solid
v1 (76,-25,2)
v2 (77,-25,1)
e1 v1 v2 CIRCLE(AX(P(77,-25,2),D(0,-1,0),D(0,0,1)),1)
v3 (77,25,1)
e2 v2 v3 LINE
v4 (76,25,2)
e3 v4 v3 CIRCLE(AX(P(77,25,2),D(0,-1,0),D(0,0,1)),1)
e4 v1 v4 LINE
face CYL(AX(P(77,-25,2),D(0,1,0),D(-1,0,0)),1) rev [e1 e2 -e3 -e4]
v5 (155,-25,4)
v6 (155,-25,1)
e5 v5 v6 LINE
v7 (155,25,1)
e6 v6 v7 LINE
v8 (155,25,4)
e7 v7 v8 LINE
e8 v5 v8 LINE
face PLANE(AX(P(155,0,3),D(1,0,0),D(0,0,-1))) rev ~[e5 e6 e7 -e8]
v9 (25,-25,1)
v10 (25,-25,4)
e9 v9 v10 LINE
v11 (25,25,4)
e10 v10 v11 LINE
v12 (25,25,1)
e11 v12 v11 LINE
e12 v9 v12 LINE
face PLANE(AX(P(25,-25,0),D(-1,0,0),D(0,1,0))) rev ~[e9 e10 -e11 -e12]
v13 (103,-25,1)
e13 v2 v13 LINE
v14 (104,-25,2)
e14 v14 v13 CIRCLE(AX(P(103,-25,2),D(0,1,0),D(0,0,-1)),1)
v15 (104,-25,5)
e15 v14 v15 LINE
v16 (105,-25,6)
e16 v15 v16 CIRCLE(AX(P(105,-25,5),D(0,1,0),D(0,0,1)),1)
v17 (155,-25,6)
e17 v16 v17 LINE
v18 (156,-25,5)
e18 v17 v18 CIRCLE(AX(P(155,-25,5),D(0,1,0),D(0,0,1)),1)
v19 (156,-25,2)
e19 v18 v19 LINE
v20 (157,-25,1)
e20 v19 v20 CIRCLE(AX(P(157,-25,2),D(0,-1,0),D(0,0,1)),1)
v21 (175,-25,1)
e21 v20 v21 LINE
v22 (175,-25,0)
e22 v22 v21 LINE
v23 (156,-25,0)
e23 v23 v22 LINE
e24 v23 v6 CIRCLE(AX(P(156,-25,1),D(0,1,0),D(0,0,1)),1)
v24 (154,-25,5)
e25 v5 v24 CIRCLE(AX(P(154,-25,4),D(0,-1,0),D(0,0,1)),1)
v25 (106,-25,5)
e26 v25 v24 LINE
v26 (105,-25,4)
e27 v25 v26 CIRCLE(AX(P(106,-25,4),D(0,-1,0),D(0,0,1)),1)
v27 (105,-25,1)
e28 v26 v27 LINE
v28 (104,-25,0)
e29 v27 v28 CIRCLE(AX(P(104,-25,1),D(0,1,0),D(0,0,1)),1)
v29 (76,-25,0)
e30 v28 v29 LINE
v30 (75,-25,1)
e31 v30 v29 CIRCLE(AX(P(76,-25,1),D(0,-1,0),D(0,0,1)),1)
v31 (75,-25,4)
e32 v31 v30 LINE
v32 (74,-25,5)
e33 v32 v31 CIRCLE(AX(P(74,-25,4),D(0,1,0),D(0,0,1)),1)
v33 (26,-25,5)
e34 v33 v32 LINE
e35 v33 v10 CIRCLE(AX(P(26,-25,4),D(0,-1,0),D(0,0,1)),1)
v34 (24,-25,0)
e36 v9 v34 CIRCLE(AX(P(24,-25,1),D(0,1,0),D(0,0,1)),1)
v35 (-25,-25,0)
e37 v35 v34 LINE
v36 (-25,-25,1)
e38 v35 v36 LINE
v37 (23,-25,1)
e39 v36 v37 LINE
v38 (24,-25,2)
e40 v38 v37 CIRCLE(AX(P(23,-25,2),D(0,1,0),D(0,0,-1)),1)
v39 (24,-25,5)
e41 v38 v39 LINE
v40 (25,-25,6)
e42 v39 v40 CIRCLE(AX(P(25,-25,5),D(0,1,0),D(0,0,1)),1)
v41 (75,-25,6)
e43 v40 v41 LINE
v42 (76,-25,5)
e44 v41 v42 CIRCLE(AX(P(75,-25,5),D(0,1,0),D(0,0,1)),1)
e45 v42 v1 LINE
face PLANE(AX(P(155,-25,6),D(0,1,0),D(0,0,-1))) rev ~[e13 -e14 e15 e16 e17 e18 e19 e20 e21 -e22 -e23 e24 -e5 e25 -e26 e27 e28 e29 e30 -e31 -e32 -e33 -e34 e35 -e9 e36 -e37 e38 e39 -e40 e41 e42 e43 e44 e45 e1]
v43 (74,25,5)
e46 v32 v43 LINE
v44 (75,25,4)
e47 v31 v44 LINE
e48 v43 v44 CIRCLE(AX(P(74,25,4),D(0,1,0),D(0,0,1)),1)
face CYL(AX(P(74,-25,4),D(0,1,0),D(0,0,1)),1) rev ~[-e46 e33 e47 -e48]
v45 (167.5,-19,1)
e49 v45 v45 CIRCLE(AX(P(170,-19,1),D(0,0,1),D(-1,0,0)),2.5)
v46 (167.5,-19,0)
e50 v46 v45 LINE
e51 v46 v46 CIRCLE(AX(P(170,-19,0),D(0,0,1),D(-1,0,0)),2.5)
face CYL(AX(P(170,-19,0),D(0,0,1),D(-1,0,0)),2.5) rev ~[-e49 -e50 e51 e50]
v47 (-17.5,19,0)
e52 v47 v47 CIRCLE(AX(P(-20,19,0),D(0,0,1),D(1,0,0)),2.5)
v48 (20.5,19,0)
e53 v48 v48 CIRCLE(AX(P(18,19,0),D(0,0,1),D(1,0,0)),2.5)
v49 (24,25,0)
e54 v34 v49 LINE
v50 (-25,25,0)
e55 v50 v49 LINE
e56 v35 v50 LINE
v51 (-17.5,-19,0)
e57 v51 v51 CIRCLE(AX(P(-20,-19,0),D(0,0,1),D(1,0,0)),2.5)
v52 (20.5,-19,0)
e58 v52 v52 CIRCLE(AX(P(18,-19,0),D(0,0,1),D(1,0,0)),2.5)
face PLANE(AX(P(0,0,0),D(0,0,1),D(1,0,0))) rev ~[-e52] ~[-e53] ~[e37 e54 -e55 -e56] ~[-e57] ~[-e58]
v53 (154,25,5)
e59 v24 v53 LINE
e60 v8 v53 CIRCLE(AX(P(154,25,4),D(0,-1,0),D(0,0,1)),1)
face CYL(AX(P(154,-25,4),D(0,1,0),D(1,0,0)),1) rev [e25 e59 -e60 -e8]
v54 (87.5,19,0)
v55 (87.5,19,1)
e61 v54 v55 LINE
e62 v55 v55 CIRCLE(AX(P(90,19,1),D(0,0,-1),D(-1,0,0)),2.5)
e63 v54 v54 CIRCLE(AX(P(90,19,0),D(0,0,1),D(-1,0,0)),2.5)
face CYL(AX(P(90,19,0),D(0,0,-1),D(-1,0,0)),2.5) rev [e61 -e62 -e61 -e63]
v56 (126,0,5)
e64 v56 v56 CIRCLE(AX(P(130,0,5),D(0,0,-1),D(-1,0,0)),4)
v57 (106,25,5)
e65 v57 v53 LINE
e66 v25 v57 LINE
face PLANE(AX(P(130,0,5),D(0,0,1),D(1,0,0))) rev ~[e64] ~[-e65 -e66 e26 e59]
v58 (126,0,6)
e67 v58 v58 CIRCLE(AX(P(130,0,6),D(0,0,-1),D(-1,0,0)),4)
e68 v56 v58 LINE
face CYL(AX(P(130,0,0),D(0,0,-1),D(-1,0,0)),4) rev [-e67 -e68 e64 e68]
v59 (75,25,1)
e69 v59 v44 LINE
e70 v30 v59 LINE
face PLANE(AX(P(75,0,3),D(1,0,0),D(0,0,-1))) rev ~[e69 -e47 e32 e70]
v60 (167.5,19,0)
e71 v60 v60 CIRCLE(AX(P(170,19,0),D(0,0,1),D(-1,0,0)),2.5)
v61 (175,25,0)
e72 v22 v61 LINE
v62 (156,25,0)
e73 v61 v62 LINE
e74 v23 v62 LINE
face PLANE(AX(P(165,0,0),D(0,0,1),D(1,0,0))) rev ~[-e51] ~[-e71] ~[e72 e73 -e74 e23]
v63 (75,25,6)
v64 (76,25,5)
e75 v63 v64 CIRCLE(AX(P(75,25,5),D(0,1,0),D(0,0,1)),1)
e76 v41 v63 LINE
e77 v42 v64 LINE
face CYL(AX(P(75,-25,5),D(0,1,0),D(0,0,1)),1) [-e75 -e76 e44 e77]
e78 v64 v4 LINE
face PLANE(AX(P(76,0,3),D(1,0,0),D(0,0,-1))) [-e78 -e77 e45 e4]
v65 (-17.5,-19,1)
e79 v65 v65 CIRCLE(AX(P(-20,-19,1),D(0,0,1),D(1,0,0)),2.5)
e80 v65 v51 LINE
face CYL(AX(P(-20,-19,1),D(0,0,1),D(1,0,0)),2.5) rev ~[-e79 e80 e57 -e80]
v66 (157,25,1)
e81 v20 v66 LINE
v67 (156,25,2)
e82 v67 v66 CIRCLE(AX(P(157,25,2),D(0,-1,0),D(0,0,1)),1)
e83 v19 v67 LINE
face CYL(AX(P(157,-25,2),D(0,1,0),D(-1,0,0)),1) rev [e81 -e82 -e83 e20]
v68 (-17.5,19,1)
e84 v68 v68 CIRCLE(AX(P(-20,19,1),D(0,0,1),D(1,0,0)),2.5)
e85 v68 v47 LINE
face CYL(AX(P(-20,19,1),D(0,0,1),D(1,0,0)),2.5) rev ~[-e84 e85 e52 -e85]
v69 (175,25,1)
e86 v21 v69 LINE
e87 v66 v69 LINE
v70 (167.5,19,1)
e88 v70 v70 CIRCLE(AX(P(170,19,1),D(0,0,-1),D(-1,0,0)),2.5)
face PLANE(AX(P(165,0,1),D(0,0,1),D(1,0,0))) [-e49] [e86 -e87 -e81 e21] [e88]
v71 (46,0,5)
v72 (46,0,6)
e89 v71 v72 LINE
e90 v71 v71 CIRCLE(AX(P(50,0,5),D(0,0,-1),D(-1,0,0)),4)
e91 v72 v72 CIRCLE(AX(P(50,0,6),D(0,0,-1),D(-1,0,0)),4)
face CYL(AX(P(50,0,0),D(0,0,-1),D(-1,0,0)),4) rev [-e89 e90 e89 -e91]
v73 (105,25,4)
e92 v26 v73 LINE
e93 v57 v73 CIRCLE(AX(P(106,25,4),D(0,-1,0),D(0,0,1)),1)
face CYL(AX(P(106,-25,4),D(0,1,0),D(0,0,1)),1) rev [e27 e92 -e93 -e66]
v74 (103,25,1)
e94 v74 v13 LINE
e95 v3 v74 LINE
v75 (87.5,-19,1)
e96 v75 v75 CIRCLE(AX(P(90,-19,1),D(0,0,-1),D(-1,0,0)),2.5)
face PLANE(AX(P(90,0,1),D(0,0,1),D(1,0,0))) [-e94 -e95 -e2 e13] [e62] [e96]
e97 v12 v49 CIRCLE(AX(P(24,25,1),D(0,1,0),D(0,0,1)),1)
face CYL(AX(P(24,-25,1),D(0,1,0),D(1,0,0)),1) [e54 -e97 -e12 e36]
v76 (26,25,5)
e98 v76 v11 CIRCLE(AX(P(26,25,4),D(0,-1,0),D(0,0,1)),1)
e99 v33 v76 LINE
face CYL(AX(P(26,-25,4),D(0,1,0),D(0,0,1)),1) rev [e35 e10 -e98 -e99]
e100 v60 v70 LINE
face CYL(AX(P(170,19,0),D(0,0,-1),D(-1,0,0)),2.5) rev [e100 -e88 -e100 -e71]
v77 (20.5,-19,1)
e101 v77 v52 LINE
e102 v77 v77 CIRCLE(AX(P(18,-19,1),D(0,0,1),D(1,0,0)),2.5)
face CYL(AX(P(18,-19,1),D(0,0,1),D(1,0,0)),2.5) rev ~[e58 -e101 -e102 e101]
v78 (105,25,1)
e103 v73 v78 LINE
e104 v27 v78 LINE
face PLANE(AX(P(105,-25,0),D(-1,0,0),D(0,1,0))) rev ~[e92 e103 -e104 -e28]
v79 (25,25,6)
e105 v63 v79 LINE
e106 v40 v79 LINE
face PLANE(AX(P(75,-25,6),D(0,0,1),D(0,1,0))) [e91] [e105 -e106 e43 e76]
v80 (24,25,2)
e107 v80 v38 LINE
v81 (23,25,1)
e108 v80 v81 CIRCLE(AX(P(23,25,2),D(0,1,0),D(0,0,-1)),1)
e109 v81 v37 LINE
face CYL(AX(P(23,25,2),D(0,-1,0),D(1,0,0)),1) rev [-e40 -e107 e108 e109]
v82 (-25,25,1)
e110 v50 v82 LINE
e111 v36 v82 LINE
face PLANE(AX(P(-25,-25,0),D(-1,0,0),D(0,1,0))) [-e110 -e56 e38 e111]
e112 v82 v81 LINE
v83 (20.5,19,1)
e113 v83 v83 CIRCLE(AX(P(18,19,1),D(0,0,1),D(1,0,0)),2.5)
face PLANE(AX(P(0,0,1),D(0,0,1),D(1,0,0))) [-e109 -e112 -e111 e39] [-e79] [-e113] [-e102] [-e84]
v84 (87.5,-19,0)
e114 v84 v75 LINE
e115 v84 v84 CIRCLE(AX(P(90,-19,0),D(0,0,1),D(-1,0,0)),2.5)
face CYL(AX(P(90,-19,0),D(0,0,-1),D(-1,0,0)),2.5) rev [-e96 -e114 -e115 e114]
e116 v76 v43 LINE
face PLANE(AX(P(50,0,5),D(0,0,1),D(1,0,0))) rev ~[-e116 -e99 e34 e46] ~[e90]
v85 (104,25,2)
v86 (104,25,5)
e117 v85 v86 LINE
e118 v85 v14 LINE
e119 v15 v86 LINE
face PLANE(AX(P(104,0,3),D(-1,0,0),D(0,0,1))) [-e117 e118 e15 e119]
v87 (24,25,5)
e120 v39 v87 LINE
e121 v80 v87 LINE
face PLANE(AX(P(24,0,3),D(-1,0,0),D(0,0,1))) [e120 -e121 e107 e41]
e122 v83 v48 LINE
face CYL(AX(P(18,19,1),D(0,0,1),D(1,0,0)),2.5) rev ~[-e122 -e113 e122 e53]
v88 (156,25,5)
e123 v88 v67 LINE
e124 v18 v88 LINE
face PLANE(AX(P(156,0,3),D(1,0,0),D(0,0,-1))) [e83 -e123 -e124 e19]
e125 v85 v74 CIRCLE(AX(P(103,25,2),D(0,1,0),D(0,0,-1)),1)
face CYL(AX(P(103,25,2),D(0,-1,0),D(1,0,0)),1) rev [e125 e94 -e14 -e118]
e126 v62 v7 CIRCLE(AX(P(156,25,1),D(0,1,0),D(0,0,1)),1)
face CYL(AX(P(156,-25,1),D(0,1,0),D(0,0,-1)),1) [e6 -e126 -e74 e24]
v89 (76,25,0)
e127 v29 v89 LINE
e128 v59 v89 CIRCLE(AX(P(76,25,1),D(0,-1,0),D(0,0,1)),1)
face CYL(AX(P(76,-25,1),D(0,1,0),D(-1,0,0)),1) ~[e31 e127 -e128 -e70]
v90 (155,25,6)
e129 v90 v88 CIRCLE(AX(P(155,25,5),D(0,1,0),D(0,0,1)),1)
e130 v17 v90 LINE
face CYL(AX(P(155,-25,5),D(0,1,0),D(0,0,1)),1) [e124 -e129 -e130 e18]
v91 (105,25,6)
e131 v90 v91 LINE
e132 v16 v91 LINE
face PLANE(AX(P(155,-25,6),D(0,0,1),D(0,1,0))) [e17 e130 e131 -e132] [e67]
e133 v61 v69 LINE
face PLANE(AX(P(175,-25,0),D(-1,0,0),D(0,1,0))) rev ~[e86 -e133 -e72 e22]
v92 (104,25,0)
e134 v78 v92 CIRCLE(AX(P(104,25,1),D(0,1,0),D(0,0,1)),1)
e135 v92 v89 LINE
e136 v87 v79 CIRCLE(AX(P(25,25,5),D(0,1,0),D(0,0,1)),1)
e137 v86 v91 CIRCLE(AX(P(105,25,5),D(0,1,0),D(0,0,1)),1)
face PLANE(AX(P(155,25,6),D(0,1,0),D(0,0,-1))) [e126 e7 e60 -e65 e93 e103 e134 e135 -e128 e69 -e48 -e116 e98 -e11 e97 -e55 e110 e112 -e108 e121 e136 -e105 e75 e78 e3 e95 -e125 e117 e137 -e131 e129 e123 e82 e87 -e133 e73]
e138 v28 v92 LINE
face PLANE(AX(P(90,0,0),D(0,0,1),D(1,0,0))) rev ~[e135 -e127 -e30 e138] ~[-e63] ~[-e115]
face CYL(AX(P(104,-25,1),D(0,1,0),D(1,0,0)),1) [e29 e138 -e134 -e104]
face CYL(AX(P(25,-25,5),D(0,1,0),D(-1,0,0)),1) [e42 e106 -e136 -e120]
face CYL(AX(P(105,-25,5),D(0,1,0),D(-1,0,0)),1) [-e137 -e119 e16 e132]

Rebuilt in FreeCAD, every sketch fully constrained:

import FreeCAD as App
import Part
import Sketcher


def edges_at(feature, points):
    """Names of the edges that pass closest to the given points."""
    edges = feature.Shape.Edges
    near = lambda p: min(range(len(edges)), key=lambda i: edges[i].distToShape(Part.Vertex(*p))[0])
    return sorted({f"Edge{near(p) + 1}" for p in points})

doc = App.newDocument("Part")
body = doc.addObject("PartDesign::Body", "Body")

# Sketch on XY plane
sketch1 = body.newObject("Sketcher::SketchObject", "Sketch")
sketch1.AttachmentSupport = (doc.getObject("XY_Plane"), [""])
sketch1.MapMode = "FlatFace"
sketch1.addGeometry(Part.LineSegment(App.Vector(-25, 25, 0), App.Vector(-25, -25, 0)), False)
sketch1.addGeometry(Part.LineSegment(App.Vector(-25, -25, 0), App.Vector(25, -25, 0)), False)
sketch1.addGeometry(Part.LineSegment(App.Vector(25, -25, 0), App.Vector(25, 25, 0)), False)
sketch1.addGeometry(Part.LineSegment(App.Vector(25, 25, 0), App.Vector(-25, 25, 0)), False)
sketch1.addConstraint(Sketcher.Constraint("Coincident", 0, 2, 1, 1))
sketch1.addConstraint(Sketcher.Constraint("Coincident", 1, 2, 2, 1))
sketch1.addConstraint(Sketcher.Constraint("Coincident", 2, 2, 3, 1))
sketch1.addConstraint(Sketcher.Constraint("Coincident", 3, 2, 0, 1))
sketch1.addConstraint(Sketcher.Constraint("Vertical", 0))
sketch1.addConstraint(Sketcher.Constraint("Horizontal", 1))
sketch1.addConstraint(Sketcher.Constraint("Vertical", 2))
sketch1.addConstraint(Sketcher.Constraint("Horizontal", 3))
sketch1.addConstraint(Sketcher.Constraint("Symmetric", 0, 2, 2, 2, -1, 1))
sketch1.addConstraint(Sketcher.Constraint("Equal", 3, 0))
sketch1.addConstraint(Sketcher.Constraint("DistanceX", 1, 1, 1, 2, 50.0))
pad1 = body.newObject("PartDesign::Pad", "Pad")
pad1.Profile = sketch1
pad1.Length = 1
body2 = doc.addObject("PartDesign::Body", "Body001")

# Sketch on XY plane
sketch2 = body2.newObject("Sketcher::SketchObject", "Sketch001")
sketch2.AttachmentSupport = (doc.getObject("XY_Plane001"), [""])
sketch2.MapMode = "FlatFace"
sketch2.AttachmentOffset = App.Placement(App.Vector(0, 0, 5), App.Rotation())
sketch2.addGeometry(Part.LineSegment(App.Vector(25, 25, 0), App.Vector(25, -25, 0)), False)
sketch2.addGeometry(Part.LineSegment(App.Vector(25, -25, 0), App.Vector(75, -25, 0)), False)
sketch2.addGeometry(Part.LineSegment(App.Vector(75, -25, 0), App.Vector(75, 25, 0)), False)
sketch2.addGeometry(Part.LineSegment(App.Vector(75, 25, 0), App.Vector(25, 25, 0)), False)
sketch2.addConstraint(Sketcher.Constraint("Coincident", 0, 2, 1, 1))
sketch2.addConstraint(Sketcher.Constraint("Coincident", 1, 2, 2, 1))
sketch2.addConstraint(Sketcher.Constraint("Coincident", 2, 2, 3, 1))
sketch2.addConstraint(Sketcher.Constraint("Coincident", 3, 2, 0, 1))
sketch2.addConstraint(Sketcher.Constraint("Vertical", 0))
sketch2.addConstraint(Sketcher.Constraint("Horizontal", 1))
sketch2.addConstraint(Sketcher.Constraint("Vertical", 2))
sketch2.addConstraint(Sketcher.Constraint("Horizontal", 3))
sketch2.addConstraint(Sketcher.Constraint("Equal", 3, 0))
sketch2.addConstraint(Sketcher.Constraint("DistanceX", 1, 1, 1, 2, 50.0))
sketch2.addConstraint(Sketcher.Constraint("DistanceX", -1, 1, 0, 2, 25.0))
sketch2.addConstraint(Sketcher.Constraint("DistanceY", 0, 2, -1, 1, 25.0))
pad2 = body2.newObject("PartDesign::Pad", "Pad001")
pad2.Profile = sketch2
pad2.Length = 1
body3 = doc.addObject("PartDesign::Body", "Body002")

# Sketch on XY plane
sketch3 = body3.newObject("Sketcher::SketchObject", "Sketch002")
sketch3.AttachmentSupport = (doc.getObject("XY_Plane002"), [""])
sketch3.MapMode = "FlatFace"
sketch3.addGeometry(Part.LineSegment(App.Vector(75, 25, 0), App.Vector(75, -25, 0)), False)
sketch3.addGeometry(Part.LineSegment(App.Vector(75, -25, 0), App.Vector(105, -25, 0)), False)
sketch3.addGeometry(Part.LineSegment(App.Vector(105, -25, 0), App.Vector(105, 25, 0)), False)
sketch3.addGeometry(Part.LineSegment(App.Vector(105, 25, 0), App.Vector(75, 25, 0)), False)
sketch3.addConstraint(Sketcher.Constraint("Coincident", 0, 2, 1, 1))
sketch3.addConstraint(Sketcher.Constraint("Coincident", 1, 2, 2, 1))
sketch3.addConstraint(Sketcher.Constraint("Coincident", 2, 2, 3, 1))
sketch3.addConstraint(Sketcher.Constraint("Coincident", 3, 2, 0, 1))
sketch3.addConstraint(Sketcher.Constraint("Vertical", 0))
sketch3.addConstraint(Sketcher.Constraint("Horizontal", 1))
sketch3.addConstraint(Sketcher.Constraint("Vertical", 2))
sketch3.addConstraint(Sketcher.Constraint("Horizontal", 3))
sketch3.addConstraint(Sketcher.Constraint("DistanceX", 1, 1, 1, 2, 30.0))
sketch3.addConstraint(Sketcher.Constraint("DistanceY", 0, 2, 0, 1, 50.0))
sketch3.addConstraint(Sketcher.Constraint("DistanceX", -1, 1, 0, 2, 75.0))
sketch3.addConstraint(Sketcher.Constraint("DistanceY", 0, 2, -1, 1, 25.0))
pad3 = body3.newObject("PartDesign::Pad", "Pad002")
pad3.Profile = sketch3
pad3.Length = 1
body4 = doc.addObject("PartDesign::Body", "Body003")

# Sketch on XY plane
sketch4 = body4.newObject("Sketcher::SketchObject", "Sketch003")
sketch4.AttachmentSupport = (doc.getObject("XY_Plane003"), [""])
sketch4.MapMode = "FlatFace"
sketch4.AttachmentOffset = App.Placement(App.Vector(0, 0, 5), App.Rotation())
sketch4.addGeometry(Part.LineSegment(App.Vector(105, 25, 0), App.Vector(105, -25, 0)), False)
sketch4.addGeometry(Part.LineSegment(App.Vector(105, -25, 0), App.Vector(155, -25, 0)), False)
sketch4.addGeometry(Part.LineSegment(App.Vector(155, -25, 0), App.Vector(155, 25, 0)), False)
sketch4.addGeometry(Part.LineSegment(App.Vector(155, 25, 0), App.Vector(105, 25, 0)), False)
sketch4.addConstraint(Sketcher.Constraint("Coincident", 0, 2, 1, 1))
sketch4.addConstraint(Sketcher.Constraint("Coincident", 1, 2, 2, 1))
sketch4.addConstraint(Sketcher.Constraint("Coincident", 2, 2, 3, 1))
sketch4.addConstraint(Sketcher.Constraint("Coincident", 3, 2, 0, 1))
sketch4.addConstraint(Sketcher.Constraint("Vertical", 0))
sketch4.addConstraint(Sketcher.Constraint("Horizontal", 1))
sketch4.addConstraint(Sketcher.Constraint("Vertical", 2))
sketch4.addConstraint(Sketcher.Constraint("Horizontal", 3))
sketch4.addConstraint(Sketcher.Constraint("Equal", 3, 0))
sketch4.addConstraint(Sketcher.Constraint("DistanceX", 1, 1, 1, 2, 50.0))
sketch4.addConstraint(Sketcher.Constraint("DistanceX", -1, 1, 0, 2, 105.0))
sketch4.addConstraint(Sketcher.Constraint("DistanceY", 0, 2, -1, 1, 25.0))
pad4 = body4.newObject("PartDesign::Pad", "Pad003")
pad4.Profile = sketch4
pad4.Length = 1
body5 = doc.addObject("PartDesign::Body", "Body004")

# Sketch on XY plane
sketch5 = body5.newObject("Sketcher::SketchObject", "Sketch004")
sketch5.AttachmentSupport = (doc.getObject("XY_Plane004"), [""])
sketch5.MapMode = "FlatFace"
sketch5.addGeometry(Part.LineSegment(App.Vector(155, 25, 0), App.Vector(155, -25, 0)), False)
sketch5.addGeometry(Part.LineSegment(App.Vector(155, -25, 0), App.Vector(175, -25, 0)), False)
sketch5.addGeometry(Part.LineSegment(App.Vector(175, -25, 0), App.Vector(175, 25, 0)), False)
sketch5.addGeometry(Part.LineSegment(App.Vector(175, 25, 0), App.Vector(155, 25, 0)), False)
sketch5.addConstraint(Sketcher.Constraint("Coincident", 0, 2, 1, 1))
sketch5.addConstraint(Sketcher.Constraint("Coincident", 1, 2, 2, 1))
sketch5.addConstraint(Sketcher.Constraint("Coincident", 2, 2, 3, 1))
sketch5.addConstraint(Sketcher.Constraint("Coincident", 3, 2, 0, 1))
sketch5.addConstraint(Sketcher.Constraint("Vertical", 0))
sketch5.addConstraint(Sketcher.Constraint("Horizontal", 1))
sketch5.addConstraint(Sketcher.Constraint("Vertical", 2))
sketch5.addConstraint(Sketcher.Constraint("Horizontal", 3))
sketch5.addConstraint(Sketcher.Constraint("DistanceX", 1, 1, 1, 2, 20.0))
sketch5.addConstraint(Sketcher.Constraint("DistanceY", 0, 2, 0, 1, 50.0))
sketch5.addConstraint(Sketcher.Constraint("DistanceX", -1, 1, 0, 2, 155.0))
sketch5.addConstraint(Sketcher.Constraint("DistanceY", 0, 2, -1, 1, 25.0))
pad5 = body5.newObject("PartDesign::Pad", "Pad004")
pad5.Profile = sketch5
pad5.Length = 1
body.AllowCompound = True
doc.recompute()

boolean = body.newObject("PartDesign::Boolean", "Boolean")
boolean.Type = "Fuse"
boolean.addObjects([body2])

# Sketch on YZ plane
sketch6 = body.newObject("Sketcher::SketchObject", "Sketch005")
sketch6.AttachmentSupport = (doc.getObject("YZ_Plane"), [""])
sketch6.MapMode = "FlatFace"
sketch6.AttachmentOffset = App.Placement(App.Vector(0, 0, 25), App.Rotation())
sketch6.addGeometry(Part.LineSegment(App.Vector(25, 0, 0), App.Vector(-25, 0, 0)), False)
sketch6.addGeometry(Part.LineSegment(App.Vector(-25, 0, 0), App.Vector(-25, 6, 0)), False)
sketch6.addGeometry(Part.LineSegment(App.Vector(-25, 6, 0), App.Vector(25, 6, 0)), False)
sketch6.addGeometry(Part.LineSegment(App.Vector(25, 6, 0), App.Vector(25, 0, 0)), False)
sketch6.addConstraint(Sketcher.Constraint("Coincident", 0, 2, 1, 1))
sketch6.addConstraint(Sketcher.Constraint("Coincident", 1, 2, 2, 1))
sketch6.addConstraint(Sketcher.Constraint("Coincident", 2, 2, 3, 1))
sketch6.addConstraint(Sketcher.Constraint("Coincident", 3, 2, 0, 1))
sketch6.addConstraint(Sketcher.Constraint("Horizontal", 0))
sketch6.addConstraint(Sketcher.Constraint("Vertical", 1))
sketch6.addConstraint(Sketcher.Constraint("Horizontal", 2))
sketch6.addConstraint(Sketcher.Constraint("Vertical", 3))
sketch6.addConstraint(Sketcher.Constraint("Symmetric", 0, 2, 3, 2, -1, 1))
sketch6.addConstraint(Sketcher.Constraint("DistanceX", 0, 2, 0, 1, 50.0))
sketch6.addConstraint(Sketcher.Constraint("DistanceY", 1, 1, 1, 2, 6.0))
pad6 = body.newObject("PartDesign::Pad", "Pad005")
pad6.Profile = sketch6
pad6.Length = 1
pad6.Reversed = True
doc.recompute()

boolean2 = body.newObject("PartDesign::Boolean", "Boolean001")
boolean2.Type = "Fuse"
boolean2.addObjects([body3])

# Sketch on YZ plane
sketch7 = body.newObject("Sketcher::SketchObject", "Sketch006")
sketch7.AttachmentSupport = (doc.getObject("YZ_Plane"), [""])
sketch7.MapMode = "FlatFace"
sketch7.AttachmentOffset = App.Placement(App.Vector(0, 0, 75), App.Rotation())
sketch7.addGeometry(Part.LineSegment(App.Vector(25, 6, 0), App.Vector(-25, 6, 0)), False)
sketch7.addGeometry(Part.LineSegment(App.Vector(-25, 6, 0), App.Vector(-25, 0, 0)), False)
sketch7.addGeometry(Part.LineSegment(App.Vector(-25, 0, 0), App.Vector(25, 0, 0)), False)
sketch7.addGeometry(Part.LineSegment(App.Vector(25, 0, 0), App.Vector(25, 6, 0)), False)
sketch7.addConstraint(Sketcher.Constraint("Coincident", 0, 2, 1, 1))
sketch7.addConstraint(Sketcher.Constraint("Coincident", 1, 2, 2, 1))
sketch7.addConstraint(Sketcher.Constraint("Coincident", 2, 2, 3, 1))
sketch7.addConstraint(Sketcher.Constraint("Coincident", 3, 2, 0, 1))
sketch7.addConstraint(Sketcher.Constraint("Horizontal", 0))
sketch7.addConstraint(Sketcher.Constraint("Vertical", 1))
sketch7.addConstraint(Sketcher.Constraint("Horizontal", 2))
sketch7.addConstraint(Sketcher.Constraint("Vertical", 3))
sketch7.addConstraint(Sketcher.Constraint("Symmetric", 1, 2, 2, 2, -1, 1))
sketch7.addConstraint(Sketcher.Constraint("DistanceX", 0, 2, 0, 1, 50.0))
sketch7.addConstraint(Sketcher.Constraint("DistanceY", 1, 2, 1, 1, 6.0))
pad7 = body.newObject("PartDesign::Pad", "Pad006")
pad7.Profile = sketch7
pad7.Length = 1
doc.recompute()

boolean3 = body.newObject("PartDesign::Boolean", "Boolean002")
boolean3.Type = "Fuse"
boolean3.addObjects([body4])

# Sketch on YZ plane
sketch8 = body.newObject("Sketcher::SketchObject", "Sketch007")
sketch8.AttachmentSupport = (doc.getObject("YZ_Plane"), [""])
sketch8.MapMode = "FlatFace"
sketch8.AttachmentOffset = App.Placement(App.Vector(0, 0, 105), App.Rotation())
sketch8.addGeometry(Part.LineSegment(App.Vector(25, 0, 0), App.Vector(-25, 0, 0)), False)
sketch8.addGeometry(Part.LineSegment(App.Vector(-25, 0, 0), App.Vector(-25, 6, 0)), False)
sketch8.addGeometry(Part.LineSegment(App.Vector(-25, 6, 0), App.Vector(25, 6, 0)), False)
sketch8.addGeometry(Part.LineSegment(App.Vector(25, 6, 0), App.Vector(25, 0, 0)), False)
sketch8.addConstraint(Sketcher.Constraint("Coincident", 0, 2, 1, 1))
sketch8.addConstraint(Sketcher.Constraint("Coincident", 1, 2, 2, 1))
sketch8.addConstraint(Sketcher.Constraint("Coincident", 2, 2, 3, 1))
sketch8.addConstraint(Sketcher.Constraint("Coincident", 3, 2, 0, 1))
sketch8.addConstraint(Sketcher.Constraint("Horizontal", 0))
sketch8.addConstraint(Sketcher.Constraint("Vertical", 1))
sketch8.addConstraint(Sketcher.Constraint("Horizontal", 2))
sketch8.addConstraint(Sketcher.Constraint("Vertical", 3))
sketch8.addConstraint(Sketcher.Constraint("Symmetric", 0, 2, 3, 2, -1, 1))
sketch8.addConstraint(Sketcher.Constraint("DistanceX", 0, 2, 0, 1, 50.0))
sketch8.addConstraint(Sketcher.Constraint("DistanceY", 1, 1, 1, 2, 6.0))
pad8 = body.newObject("PartDesign::Pad", "Pad007")
pad8.Profile = sketch8
pad8.Length = 1
pad8.Reversed = True
doc.recompute()

boolean4 = body.newObject("PartDesign::Boolean", "Boolean003")
boolean4.Type = "Fuse"
boolean4.addObjects([body5])

# Sketch on YZ plane
sketch9 = body.newObject("Sketcher::SketchObject", "Sketch008")
sketch9.AttachmentSupport = (doc.getObject("YZ_Plane"), [""])
sketch9.MapMode = "FlatFace"
sketch9.AttachmentOffset = App.Placement(App.Vector(0, 0, 155), App.Rotation())
sketch9.addGeometry(Part.LineSegment(App.Vector(25, 6, 0), App.Vector(-25, 6, 0)), False)
sketch9.addGeometry(Part.LineSegment(App.Vector(-25, 6, 0), App.Vector(-25, 0, 0)), False)
sketch9.addGeometry(Part.LineSegment(App.Vector(-25, 0, 0), App.Vector(25, 0, 0)), False)
sketch9.addGeometry(Part.LineSegment(App.Vector(25, 0, 0), App.Vector(25, 6, 0)), False)
sketch9.addConstraint(Sketcher.Constraint("Coincident", 0, 2, 1, 1))
sketch9.addConstraint(Sketcher.Constraint("Coincident", 1, 2, 2, 1))
sketch9.addConstraint(Sketcher.Constraint("Coincident", 2, 2, 3, 1))
sketch9.addConstraint(Sketcher.Constraint("Coincident", 3, 2, 0, 1))
sketch9.addConstraint(Sketcher.Constraint("Horizontal", 0))
sketch9.addConstraint(Sketcher.Constraint("Vertical", 1))
sketch9.addConstraint(Sketcher.Constraint("Horizontal", 2))
sketch9.addConstraint(Sketcher.Constraint("Vertical", 3))
sketch9.addConstraint(Sketcher.Constraint("Symmetric", 1, 2, 2, 2, -1, 1))
sketch9.addConstraint(Sketcher.Constraint("DistanceX", 0, 2, 0, 1, 50.0))
sketch9.addConstraint(Sketcher.Constraint("DistanceY", 1, 2, 1, 1, 6.0))
pad9 = body.newObject("PartDesign::Pad", "Pad008")
pad9.Profile = sketch9
pad9.Length = 1
doc.recompute()

fillet = body.newObject("PartDesign::Fillet", "Fillet")
fillet.Base = (pad9, edges_at(pad9, [(24, 0, 1)]))
fillet.Radius = 1
doc.recompute()

fillet2 = body.newObject("PartDesign::Fillet", "Fillet001")
fillet2.Base = (fillet, edges_at(fillet, [(24, 0, 6)]))
fillet2.Radius = 1
doc.recompute()

fillet3 = body.newObject("PartDesign::Fillet", "Fillet002")
fillet3.Base = (fillet2, edges_at(fillet2, [(76, 0, 6)]))
fillet3.Radius = 1
doc.recompute()

fillet4 = body.newObject("PartDesign::Fillet", "Fillet003")
fillet4.Base = (fillet3, edges_at(fillet3, [(76, 0, 1)]))
fillet4.Radius = 1
doc.recompute()

fillet5 = body.newObject("PartDesign::Fillet", "Fillet004")
fillet5.Base = (fillet4, edges_at(fillet4, [(104, 0, 6)]))
fillet5.Radius = 1
doc.recompute()

fillet6 = body.newObject("PartDesign::Fillet", "Fillet005")
fillet6.Base = (fillet5, edges_at(fillet5, [(104, 0, 1)]))
fillet6.Radius = 1
doc.recompute()

fillet7 = body.newObject("PartDesign::Fillet", "Fillet006")
fillet7.Base = (fillet6, edges_at(fillet6, [(156, 0, 6)]))
fillet7.Radius = 1
doc.recompute()

fillet8 = body.newObject("PartDesign::Fillet", "Fillet007")
fillet8.Base = (fillet7, edges_at(fillet7, [(156, 0, 1)]))
fillet8.Radius = 1
doc.recompute()

fillet9 = body.newObject("PartDesign::Fillet", "Fillet008")
fillet9.Base = (fillet8, edges_at(fillet8, [(155, 0, 0)]))
fillet9.Radius = 1
doc.recompute()

fillet10 = body.newObject("PartDesign::Fillet", "Fillet009")
fillet10.Base = (fillet9, edges_at(fillet9, [(155, 0, 5)]))
fillet10.Radius = 1
doc.recompute()

fillet11 = body.newObject("PartDesign::Fillet", "Fillet010")
fillet11.Base = (fillet10, edges_at(fillet10, [(105, 0, 5)]))
fillet11.Radius = 1
doc.recompute()

fillet12 = body.newObject("PartDesign::Fillet", "Fillet011")
fillet12.Base = (fillet11, edges_at(fillet11, [(105, 0, 0)]))
fillet12.Radius = 1
doc.recompute()

fillet13 = body.newObject("PartDesign::Fillet", "Fillet012")
fillet13.Base = (fillet12, edges_at(fillet12, [(25, 0, 5)]))
fillet13.Radius = 1
doc.recompute()

fillet14 = body.newObject("PartDesign::Fillet", "Fillet013")
fillet14.Base = (fillet13, edges_at(fillet13, [(25, 0, 0)]))
fillet14.Radius = 1
doc.recompute()

fillet15 = body.newObject("PartDesign::Fillet", "Fillet014")
fillet15.Base = (fillet14, edges_at(fillet14, [(75, 0, 5)]))
fillet15.Radius = 1
doc.recompute()

fillet16 = body.newObject("PartDesign::Fillet", "Fillet015")
fillet16.Base = (fillet15, edges_at(fillet15, [(75, 0, 0)]))
fillet16.Radius = 1

# Sketch on XY plane
sketch10 = body.newObject("Sketcher::SketchObject", "Sketch009")
sketch10.AttachmentSupport = (doc.getObject("XY_Plane"), [""])
sketch10.MapMode = "FlatFace"
sketch10.AttachmentOffset = App.Placement(App.Vector(0, 0, 1), App.Rotation())
sketch10.addGeometry(Part.Circle(App.Vector(-20, 19, 0), App.Vector(0, 0, 1), 2.5), False)
sketch10.addGeometry(Part.Circle(App.Vector(-20, -19, 0), App.Vector(0, 0, 1), 2.5), False)
sketch10.addGeometry(Part.Circle(App.Vector(18, -19, 0), App.Vector(0, 0, 1), 2.5), False)
sketch10.addGeometry(Part.Circle(App.Vector(18, 19, 0), App.Vector(0, 0, 1), 2.5), False)
sketch10.addConstraint(Sketcher.Constraint("Equal", 0, 1))
sketch10.addConstraint(Sketcher.Constraint("Equal", 1, 2))
sketch10.addConstraint(Sketcher.Constraint("Equal", 2, 3))
sketch10.addConstraint(Sketcher.Constraint("Symmetric", 0, 3, 1, 3, -1))
sketch10.addConstraint(Sketcher.Constraint("Symmetric", 2, 3, 3, 3, -1))
sketch10.addConstraint(Sketcher.Constraint("Horizontal", 1, 3, 2, 3))
sketch10.addConstraint(Sketcher.Constraint("Diameter", 0, 5.0))
sketch10.addConstraint(Sketcher.Constraint("DistanceX", 0, 3, -1, 1, 20.0))
sketch10.addConstraint(Sketcher.Constraint("DistanceY", -1, 1, 0, 3, 19.0))
sketch10.addConstraint(Sketcher.Constraint("DistanceX", -1, 1, 2, 3, 18.0))
pocket1 = body.newObject("PartDesign::Pocket", "Pocket")
pocket1.Profile = sketch10
pocket1.Length = 1

# Sketch on XY plane
sketch11 = body.newObject("Sketcher::SketchObject", "Sketch010")
sketch11.AttachmentSupport = (doc.getObject("XY_Plane"), [""])
sketch11.MapMode = "FlatFace"
sketch11.addGeometry(Part.Circle(App.Vector(50, 0, 0), App.Vector(0, 0, 1), 4), False)
sketch11.addGeometry(Part.Circle(App.Vector(130, 0, 0), App.Vector(0, 0, 1), 4), False)
sketch11.addGeometry(Part.Circle(App.Vector(90, 19, 0), App.Vector(0, 0, 1), 2.5), False)
sketch11.addGeometry(Part.Circle(App.Vector(90, -19, 0), App.Vector(0, 0, 1), 2.5), False)
sketch11.addGeometry(Part.Circle(App.Vector(170, 19, 0), App.Vector(0, 0, 1), 2.5), False)
sketch11.addGeometry(Part.Circle(App.Vector(170, -19, 0), App.Vector(0, 0, 1), 2.5), False)
sketch11.addConstraint(Sketcher.Constraint("Equal", 0, 1))
sketch11.addConstraint(Sketcher.Constraint("Equal", 2, 3))
sketch11.addConstraint(Sketcher.Constraint("Equal", 3, 4))
sketch11.addConstraint(Sketcher.Constraint("Equal", 4, 5))
sketch11.addConstraint(Sketcher.Constraint("Symmetric", 2, 3, 3, 3, -1))
sketch11.addConstraint(Sketcher.Constraint("Symmetric", 4, 3, 5, 3, -1))
sketch11.addConstraint(Sketcher.Constraint("PointOnObject", 0, 3, -1))
sketch11.addConstraint(Sketcher.Constraint("PointOnObject", 1, 3, -1))
sketch11.addConstraint(Sketcher.Constraint("Horizontal", 2, 3, 4, 3))
sketch11.addConstraint(Sketcher.Constraint("Diameter", 0, 8.0))
sketch11.addConstraint(Sketcher.Constraint("Diameter", 2, 5.0))
sketch11.addConstraint(Sketcher.Constraint("DistanceX", -1, 1, 0, 3, 50.0))
sketch11.addConstraint(Sketcher.Constraint("DistanceX", -1, 1, 1, 3, 130.0))
sketch11.addConstraint(Sketcher.Constraint("DistanceX", -1, 1, 2, 3, 90.0))
sketch11.addConstraint(Sketcher.Constraint("DistanceY", -1, 1, 2, 3, 19.0))
sketch11.addConstraint(Sketcher.Constraint("DistanceX", -1, 1, 4, 3, 170.0))
pocket2 = body.newObject("PartDesign::Pocket", "Pocket001")
pocket2.Profile = sketch11
pocket2.Length = 101
pocket2.Midplane = True

doc.recompute()
